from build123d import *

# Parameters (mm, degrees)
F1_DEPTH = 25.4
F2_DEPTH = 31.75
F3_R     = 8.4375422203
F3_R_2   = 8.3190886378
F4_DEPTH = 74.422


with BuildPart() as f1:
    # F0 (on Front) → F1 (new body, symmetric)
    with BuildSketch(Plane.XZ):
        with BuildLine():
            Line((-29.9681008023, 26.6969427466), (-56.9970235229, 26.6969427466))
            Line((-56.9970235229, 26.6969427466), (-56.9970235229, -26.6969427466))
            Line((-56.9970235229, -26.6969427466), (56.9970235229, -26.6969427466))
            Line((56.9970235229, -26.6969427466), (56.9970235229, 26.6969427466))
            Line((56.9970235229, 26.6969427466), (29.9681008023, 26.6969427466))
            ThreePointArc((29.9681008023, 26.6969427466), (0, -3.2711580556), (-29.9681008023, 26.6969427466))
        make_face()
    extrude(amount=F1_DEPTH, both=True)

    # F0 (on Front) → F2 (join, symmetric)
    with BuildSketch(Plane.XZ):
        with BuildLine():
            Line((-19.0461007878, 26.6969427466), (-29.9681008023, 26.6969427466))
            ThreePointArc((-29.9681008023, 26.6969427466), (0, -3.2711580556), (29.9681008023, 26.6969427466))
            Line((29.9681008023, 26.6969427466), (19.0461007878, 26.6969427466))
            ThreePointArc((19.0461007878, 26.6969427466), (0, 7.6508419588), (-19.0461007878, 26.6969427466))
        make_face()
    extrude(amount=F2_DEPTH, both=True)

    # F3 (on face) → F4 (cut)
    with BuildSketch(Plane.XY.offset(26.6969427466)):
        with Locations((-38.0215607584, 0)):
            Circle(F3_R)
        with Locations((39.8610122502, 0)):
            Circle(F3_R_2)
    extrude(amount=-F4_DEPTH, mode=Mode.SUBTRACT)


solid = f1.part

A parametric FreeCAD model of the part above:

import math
import FreeCAD as App
import Part
import Sketcher
from FreeCAD import Vector
Q = App.Units.Quantity

doc = App.newDocument("Part")
body = doc.addObject("PartDesign::Body", "Body")

# Sketch on XZ plane
sketch1 = doc.addObject("Sketcher::SketchObject", "Sketch")
body.addObject(sketch1)
sketch1.AttachmentSupport = (doc.XZ_Plane, [""])
sketch1.MapMode = "FlatFace"
sketch1.addGeometry([
    Part.LineSegment(Vector(-30, 27, 0), Vector(-57, 27, 0)),  # 0
    Part.LineSegment(Vector(-57, 27, 0), Vector(-57, -27, 0)),  # 1
    Part.LineSegment(Vector(-57, -27, 0), Vector(57, -27, 0)),  # 2
    Part.LineSegment(Vector(57, -27, 0), Vector(57, 27, 0)),  # 3
    Part.LineSegment(Vector(57, 27, 0), Vector(30, 27, 0)),  # 4
    Part.ArcOfCircle(Part.Circle(Vector(0, 27, 0), Vector(0, 0, 1), 30), math.radians(180), math.radians(360)),  # 5
], False)
sketch1.addConstraint([
    Sketcher.Constraint("Coincident", 0, 2, 1, 1),
    Sketcher.Constraint("Coincident", 1, 2, 2, 1),
    Sketcher.Constraint("Coincident", 2, 2, 3, 1),
    Sketcher.Constraint("Coincident", 3, 2, 4, 1),
    Sketcher.Constraint("Coincident", 4, 2, 5, 2),
    Sketcher.Constraint("Coincident", 5, 1, 0, 1),
    Sketcher.Constraint("Horizontal", 0),
    Sketcher.Constraint("Vertical", 1),
    Sketcher.Constraint("Horizontal", 2),
    Sketcher.Constraint("Vertical", 3),
    Sketcher.Constraint("Horizontal", 4),
    Sketcher.Constraint("Symmetric", 0, 2, 2, 2, -1, 1),
    Sketcher.Constraint("Symmetric", 4, 2, 5, 1, -2),
    Sketcher.Constraint("Horizontal", 5, 3, 0, 2),
    Sketcher.Constraint("Radius", 5, 29.968101),
    Sketcher.Constraint("DistanceX", 0, 2, 0, 1, 27.028923),
    Sketcher.Constraint("DistanceY", 1, 2, 1, 1, 53.393885),
])
pad1 = doc.addObject("PartDesign::Pad", "Pad")
body.addObject(pad1)
pad1.Profile = sketch1
pad1.Length = Q("2 in")
pad1.Midplane = True

# Sketch on XZ plane
sketch2 = doc.addObject("Sketcher::SketchObject", "Sketch001")
body.addObject(sketch2)
sketch2.AttachmentSupport = (doc.XZ_Plane, [""])
sketch2.MapMode = "FlatFace"
sketch2.addGeometry([
    Part.LineSegment(Vector(-19, 27, 0), Vector(-30, 27, 0)),
    Part.ArcOfCircle(Part.Circle(Vector(0, 27, 0), Vector(0, 0, 1), 30), math.radians(180), math.radians(360)),
    Part.LineSegment(Vector(30, 27, 0), Vector(19, 27, 0)),
    Part.ArcOfCircle(Part.Circle(Vector(0, 27, 0), Vector(0, 0, 1), 19), math.radians(180), math.radians(360)),
], False)
sketch2.addConstraint([
    Sketcher.Constraint("Coincident", 0, 2, 1, 1),
    Sketcher.Constraint("Coincident", 1, 2, 2, 1),
    Sketcher.Constraint("Coincident", 2, 2, 3, 2),
    Sketcher.Constraint("Coincident", 3, 1, 0, 1),
    Sketcher.Constraint("Horizontal", 0),
    Sketcher.Constraint("Horizontal", 2),
    Sketcher.Constraint("Coincident", 3, 3, 1, 3),
    Sketcher.Constraint("Symmetric", 0, 2, 1, 2, -2),
    Sketcher.Constraint("Horizontal", 3, 3, 0, 2),
    Sketcher.Constraint("DistanceX", 0, 2, 0, 1, Q("0.43 in")),
    Sketcher.Constraint("Radius", 1, 29.968101),
    Sketcher.Constraint("DistanceY", -1, 1, 1, 3, 26.696943),
])
pad2 = doc.addObject("PartDesign::Pad", "Pad001")
body.addObject(pad2)
pad2.Profile = sketch2
pad2.Length = Q("2.5 in")
pad2.Midplane = True

# Sketch on XY plane
sketch3 = doc.addObject("Sketcher::SketchObject", "Sketch002")
body.addObject(sketch3)
sketch3.AttachmentSupport = (doc.XY_Plane, [""])
sketch3.MapMode = "FlatFace"
sketch3.AttachmentOffset = App.Placement(Vector(0, 0, 26.696943), App.Rotation())
sketch3.addGeometry([
    Part.Circle(Vector(-38, 0, 0), Vector(0, 0, 1), 8),
    Part.Circle(Vector(40, 0, 0), Vector(0, 0, 1), 8),
], False)
sketch3.addConstraint([
    Sketcher.Constraint("PointOnObject", 0, 3, -1),
    Sketcher.Constraint("PointOnObject", 1, 3, -1),
    Sketcher.Constraint("Diameter", 0, 16.875084),
    Sketcher.Constraint("Diameter", 1, 16.638177),
    Sketcher.Constraint("DistanceX", 0, 3, -1, 1, 38.021561),
    Sketcher.Constraint("DistanceX", -1, 1, 1, 3, 39.861012),
])
pocket1 = doc.addObject("PartDesign::Pocket", "Pocket")
body.addObject(pocket1)
pocket1.Profile = sketch3
pocket1.Length = Q("2.93 in")

doc.recompute()
